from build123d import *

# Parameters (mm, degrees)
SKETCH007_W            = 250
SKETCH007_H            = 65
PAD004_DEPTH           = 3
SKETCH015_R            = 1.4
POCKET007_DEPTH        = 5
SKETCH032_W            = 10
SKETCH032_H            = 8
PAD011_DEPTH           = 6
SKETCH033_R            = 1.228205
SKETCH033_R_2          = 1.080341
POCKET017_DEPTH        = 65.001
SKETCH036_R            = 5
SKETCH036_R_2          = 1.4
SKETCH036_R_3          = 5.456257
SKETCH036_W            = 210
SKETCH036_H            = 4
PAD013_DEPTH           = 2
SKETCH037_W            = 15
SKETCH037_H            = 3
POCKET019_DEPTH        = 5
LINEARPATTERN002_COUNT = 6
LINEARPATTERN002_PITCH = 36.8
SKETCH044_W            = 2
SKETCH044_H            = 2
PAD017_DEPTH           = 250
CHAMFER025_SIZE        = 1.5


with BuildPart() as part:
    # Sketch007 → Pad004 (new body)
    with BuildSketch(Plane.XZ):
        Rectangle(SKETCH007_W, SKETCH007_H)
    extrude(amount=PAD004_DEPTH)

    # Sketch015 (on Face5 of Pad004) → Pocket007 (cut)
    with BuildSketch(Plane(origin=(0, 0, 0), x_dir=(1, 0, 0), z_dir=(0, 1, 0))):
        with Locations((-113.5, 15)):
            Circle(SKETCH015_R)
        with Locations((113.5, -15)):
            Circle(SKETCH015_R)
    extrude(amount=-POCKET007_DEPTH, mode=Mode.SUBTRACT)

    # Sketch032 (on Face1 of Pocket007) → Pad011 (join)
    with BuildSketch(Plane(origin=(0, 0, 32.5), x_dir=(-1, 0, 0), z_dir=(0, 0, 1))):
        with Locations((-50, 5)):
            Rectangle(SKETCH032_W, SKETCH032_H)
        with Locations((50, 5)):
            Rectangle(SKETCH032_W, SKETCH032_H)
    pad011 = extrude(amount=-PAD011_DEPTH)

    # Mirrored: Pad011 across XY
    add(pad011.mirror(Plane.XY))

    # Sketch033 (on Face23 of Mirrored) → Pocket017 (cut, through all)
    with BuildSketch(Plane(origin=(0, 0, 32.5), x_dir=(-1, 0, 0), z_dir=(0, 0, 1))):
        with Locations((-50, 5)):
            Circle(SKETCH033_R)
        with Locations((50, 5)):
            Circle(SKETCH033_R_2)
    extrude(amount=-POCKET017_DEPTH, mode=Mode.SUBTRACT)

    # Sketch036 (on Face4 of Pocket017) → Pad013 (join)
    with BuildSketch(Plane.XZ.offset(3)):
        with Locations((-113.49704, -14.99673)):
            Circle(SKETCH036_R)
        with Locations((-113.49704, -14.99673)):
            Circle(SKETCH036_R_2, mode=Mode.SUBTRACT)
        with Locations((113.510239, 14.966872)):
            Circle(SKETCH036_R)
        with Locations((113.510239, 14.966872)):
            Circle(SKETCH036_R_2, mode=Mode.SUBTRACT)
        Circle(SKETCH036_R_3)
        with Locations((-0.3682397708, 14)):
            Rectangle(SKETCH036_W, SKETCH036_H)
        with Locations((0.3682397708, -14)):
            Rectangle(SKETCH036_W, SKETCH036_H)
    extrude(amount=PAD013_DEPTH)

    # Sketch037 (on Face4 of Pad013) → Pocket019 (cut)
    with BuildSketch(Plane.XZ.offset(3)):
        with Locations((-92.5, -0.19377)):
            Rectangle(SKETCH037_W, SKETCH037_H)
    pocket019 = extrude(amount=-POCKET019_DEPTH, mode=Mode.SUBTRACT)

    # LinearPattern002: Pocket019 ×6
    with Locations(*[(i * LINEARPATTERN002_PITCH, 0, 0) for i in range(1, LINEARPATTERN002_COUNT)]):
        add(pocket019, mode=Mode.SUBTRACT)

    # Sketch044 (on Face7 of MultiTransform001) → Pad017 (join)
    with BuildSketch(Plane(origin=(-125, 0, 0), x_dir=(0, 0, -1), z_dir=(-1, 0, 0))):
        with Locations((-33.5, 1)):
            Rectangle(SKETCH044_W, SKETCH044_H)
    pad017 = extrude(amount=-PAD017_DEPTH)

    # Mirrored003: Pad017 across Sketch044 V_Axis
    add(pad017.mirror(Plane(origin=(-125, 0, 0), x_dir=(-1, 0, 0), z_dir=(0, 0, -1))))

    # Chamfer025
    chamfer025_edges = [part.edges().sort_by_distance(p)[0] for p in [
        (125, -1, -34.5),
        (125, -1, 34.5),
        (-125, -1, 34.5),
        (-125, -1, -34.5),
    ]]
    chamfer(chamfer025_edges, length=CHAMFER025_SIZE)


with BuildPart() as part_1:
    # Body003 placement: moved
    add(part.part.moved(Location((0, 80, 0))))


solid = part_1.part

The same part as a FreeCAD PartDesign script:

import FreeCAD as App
import Part
import Sketcher
from FreeCAD import Vector


def edges_at(feature, points):
    """Names of the edges that pass closest to the given points."""
    edges = feature.Shape.Edges
    near = lambda p: min(range(len(edges)), key=lambda i: edges[i].distToShape(Part.Vertex(*p))[0])
    return sorted({f"Edge{near(p) + 1}" for p in points})


def add_polygon(sketch, points):
    """Adds a closed chain of lines whose ends are joined by coincident constraints."""
    first, n = sketch.GeometryCount, len(points)
    for a, b in zip(points, points[1:] + points[:1]):
        sketch.addGeometry(Part.LineSegment(App.Vector(*a, 0), App.Vector(*b, 0)), False)
    for i in range(n):
        sketch.addConstraint(Sketcher.Constraint("Coincident", first + i, 2, first + (i + 1) % n, 1))

doc = App.newDocument("Part")
body = doc.addObject("PartDesign::Body", "Body")

# Sketch on XZ plane
sketch1 = body.newObject("Sketcher::SketchObject", "Sketch")
sketch1.AttachmentSupport = (doc.getObject("XZ_Plane"), [""])
sketch1.MapMode = "FlatFace"
add_polygon(sketch1, [(-125, 32), (-125, -32), (125, -32), (125, 32)])  # lines 0-3
sketch1.addConstraint([
    Sketcher.Constraint("Vertical", 0),
    Sketcher.Constraint("Horizontal", 1),
    Sketcher.Constraint("Vertical", 2),
    Sketcher.Constraint("Horizontal", 3),
    Sketcher.Constraint("Symmetric", 0, 2, 2, 2, -1, 1),
    Sketcher.Constraint("DistanceX", 1, 1, 1, 2, 250.0),
    Sketcher.Constraint("DistanceY", 0, 2, 0, 1, 65.0),
])
pad1 = body.newObject("PartDesign::Pad", "Pad")
pad1.Profile = sketch1
pad1.Length = 3

# Sketch on XZ plane
sketch2 = body.newObject("Sketcher::SketchObject", "Sketch001")
sketch2.AttachmentSupport = (doc.getObject("XZ_Plane"), [""])
sketch2.MapMode = "FlatFace"
sketch2.addGeometry([
    Part.Circle(Vector(-113.5, -15, 0), Vector(0, 0, 1), 1.4),
    Part.Circle(Vector(113.5, 15, 0), Vector(0, 0, 1), 1.4),
], False)
sketch2.addConstraint([
    Sketcher.Constraint("Equal", 0, 1),
    Sketcher.Constraint("Symmetric", 0, 3, 1, 3, -1, 1),
    Sketcher.Constraint("Diameter", 0, 2.8),
    Sketcher.Constraint("DistanceY", 0, 3, -1, 1, 15.0),
    Sketcher.Constraint("DistanceX", 0, 3, 1, 3, 227.0),
])
pocket1 = body.newObject("PartDesign::Pocket", "Pocket")
pocket1.Profile = sketch2
pocket1.Length = 5
pocket1.Reversed = True

# Sketch on XY plane
sketch3 = body.newObject("Sketcher::SketchObject", "Sketch002")
sketch3.AttachmentSupport = (doc.getObject("XY_Plane"), [""])
sketch3.MapMode = "FlatFace"
sketch3.AttachmentOffset = App.Placement(Vector(0, 0, 32.5), App.Rotation())
add_polygon(sketch3, [(55, -9), (55, -1), (45, -1), (45, -9)])  # lines 0-3
add_polygon(sketch3, [(-45, -9), (-45, -1), (-55, -1), (-55, -9)])  # lines 4-7
sketch3.addConstraint([
    Sketcher.Constraint("Vertical", 0),
    Sketcher.Constraint("Horizontal", 1),
    Sketcher.Constraint("Vertical", 2),
    Sketcher.Constraint("Horizontal", 3),
    Sketcher.Constraint("Vertical", 4),
    Sketcher.Constraint("Horizontal", 5),
    Sketcher.Constraint("Vertical", 6),
    Sketcher.Constraint("Horizontal", 7),
    Sketcher.Constraint("Symmetric", 1, 2, 4, 2, -2),
    Sketcher.Constraint("Symmetric", 3, 2, 6, 2, -2),
    Sketcher.Constraint("DistanceX", 1, 2, 1, 1, 10.0),
    Sketcher.Constraint("DistanceY", 0, 1, 0, 2, 8.0),
    Sketcher.Constraint("DistanceX", -1, 1, 0, 2, 55.0),
    Sketcher.Constraint("DistanceY", 0, 2, -1, 1, 1.0),
])
pad2 = body.newObject("PartDesign::Pad", "Pad001")
pad2.Profile = sketch3
pad2.Length = 6
pad2.Reversed = True
doc.recompute()

mirrored = body.newObject("PartDesign::Mirrored", "Mirrored")
mirrored.Originals = [pad2]
mirrored.MirrorPlane = (doc.getObject("XY_Plane"), [""])
body.Tip = mirrored

# Sketch on XY plane
sketch4 = body.newObject("Sketcher::SketchObject", "Sketch003")
sketch4.AttachmentSupport = (doc.getObject("XY_Plane"), [""])
sketch4.MapMode = "FlatFace"
sketch4.AttachmentOffset = App.Placement(Vector(0, 0, 32.5), App.Rotation())
sketch4.addGeometry([
    Part.Circle(Vector(50, -5, 0), Vector(0, 0, 1), 1.2),
    Part.Circle(Vector(-50, -5, 0), Vector(0, 0, 1), 1.1),
], False)
sketch4.addConstraint([
    Sketcher.Constraint("Symmetric", 0, 3, 1, 3, -2),
    Sketcher.Constraint("DistanceX", -1, 1, 0, 3, 50.0),
    Sketcher.Constraint("DistanceY", 0, 3, -1, 1, 5.0),
    Sketcher.Constraint("Diameter", 0, 2.45641),
    Sketcher.Constraint("Diameter", 1, 2.160682),
])
pocket2 = body.newObject("PartDesign::Pocket", "Pocket001")
pocket2.Profile = sketch4
pocket2.Type = "ThroughAll"

# Sketch on XZ plane
sketch5 = body.newObject("Sketcher::SketchObject", "Sketch004")
sketch5.AttachmentSupport = (doc.getObject("XZ_Plane"), [""])
sketch5.MapMode = "FlatFace"
sketch5.AttachmentOffset = App.Placement(Vector(0, 0, 3), App.Rotation())
sketch5.addGeometry(Part.Circle(Vector(-113.5, -15, 0), Vector(0, 0, 1), 5), False)  # 0
sketch5.addGeometry(Part.Circle(Vector(-113.5, -15, 0), Vector(0, 0, 1), 1.4), False)  # 1
sketch5.addGeometry(Part.Circle(Vector(113.5, 15, 0), Vector(0, 0, 1), 5), False)  # 2
sketch5.addGeometry(Part.Circle(Vector(113.5, 15, 0), Vector(0, 0, 1), 1.4), False)  # 3
sketch5.addGeometry(Part.Circle(Vector(0, 0, 0), Vector(0, 0, 1), 5.5), False)  # 4
add_polygon(sketch5, [(-105.4, 16), (-105.4, 12), (104.6, 12), (104.6, 16)])  # lines 5-8
add_polygon(sketch5, [(-104.6, -12), (-104.6, -16), (105.4, -16), (105.4, -12)])  # lines 9-12
sketch5.addConstraint([
    Sketcher.Constraint("Vertical", 5),
    Sketcher.Constraint("Horizontal", 6),
    Sketcher.Constraint("Vertical", 7),
    Sketcher.Constraint("Horizontal", 8),
    Sketcher.Constraint("Vertical", 9),
    Sketcher.Constraint("Horizontal", 10),
    Sketcher.Constraint("Vertical", 11),
    Sketcher.Constraint("Horizontal", 12),
    Sketcher.Constraint("Coincident", 4, 3, -1, 1),
    Sketcher.Constraint("Coincident", 1, 3, 0, 3),
    Sketcher.Constraint("Coincident", 3, 3, 2, 3),
    Sketcher.Constraint("Equal", 0, 2),
    Sketcher.Constraint("Equal", 1, 3),
    Sketcher.Constraint("Symmetric", 7, 2, 9, 2, -1, 1),
    Sketcher.Constraint("Symmetric", 5, 2, 11, 2, -1, 1),
    Sketcher.Constraint("Diameter", 0, 10.0),
    Sketcher.Constraint("Diameter", 1, 2.8),
    Sketcher.Constraint("DistanceX", 6, 1, 6, 2, 210.0),
    Sketcher.Constraint("DistanceY", 5, 2, 5, 1, 4.0),
    Sketcher.Constraint("DistanceY", -1, 1, 5, 2, 12.0),
    Sketcher.Constraint("Diameter", 4, 10.912514),
    Sketcher.Constraint("DistanceX", 10, 2, 2, 3, 8.141999),
    Sketcher.Constraint("DistanceX", 0, 3, 5, 2, 8.1288),
    Sketcher.Constraint("DistanceX", 0, 3, -1, 1, 113.49704),
    Sketcher.Constraint("DistanceY", 0, 3, -1, 1, 14.99673),
    Sketcher.Constraint("DistanceY", -1, 1, 2, 3, 14.966872),
])
pad3 = body.newObject("PartDesign::Pad", "Pad002")
pad3.Profile = sketch5
pad3.Length = 2

# Sketch on XZ plane
sketch6 = body.newObject("Sketcher::SketchObject", "Sketch005")
sketch6.AttachmentSupport = (doc.getObject("XZ_Plane"), [""])
sketch6.MapMode = "FlatFace"
sketch6.AttachmentOffset = App.Placement(Vector(0, 0, 3), App.Rotation())
add_polygon(sketch6, [(-100, 1.3), (-100, -1.7), (-85, -1.7), (-85, 1.3)])  # lines 0-3
sketch6.addConstraint([
    Sketcher.Constraint("Vertical", 0),
    Sketcher.Constraint("Horizontal", 1),
    Sketcher.Constraint("Vertical", 2),
    Sketcher.Constraint("Horizontal", 3),
    Sketcher.Constraint("DistanceX", 1, 1, 1, 2, 15.0),
    Sketcher.Constraint("DistanceY", 0, 2, 0, 1, 3.0),
    Sketcher.Constraint("DistanceX", 0, 2, -1, 1, 100.0),
    Sketcher.Constraint("DistanceY", 0, 2, -1, 1, 1.69377),
])
pocket3 = body.newObject("PartDesign::Pocket", "Pocket002")
pocket3.Profile = sketch6
pocket3.Length = 5
doc.recompute()

linearpattern = body.newObject("PartDesign::LinearPattern", "LinearPattern")
linearpattern.Originals = [pocket3]
linearpattern.Direction = (doc.getObject("X_Axis"), [""])
linearpattern.Mode = "offset"
linearpattern.Offset = 36.8
linearpattern.Occurrences = 6
body.Tip = linearpattern

# Sketch on YZ plane
sketch7 = body.newObject("Sketcher::SketchObject", "Sketch006")
sketch7.AttachmentSupport = (doc.getObject("YZ_Plane"), [""])
sketch7.MapMode = "FlatFace"
sketch7.AttachmentOffset = App.Placement(Vector(0, 0, -125), App.Rotation())
add_polygon(sketch7, [(-2, 34.5), (0, 34.5), (0, 32.5), (-2, 32.5)])  # lines 0-3
sketch7.addConstraint([
    Sketcher.Constraint("Horizontal", 0),
    Sketcher.Constraint("Vertical", 1),
    Sketcher.Constraint("Horizontal", 2),
    Sketcher.Constraint("Vertical", 3),
    Sketcher.Constraint("PointOnObject", 0, 2, -2),
    Sketcher.Constraint("Equal", 2, 1),
    Sketcher.Constraint("DistanceX", 0, 1, 0, 2, 2.0),
    Sketcher.Constraint("DistanceY", -1, 1, 0, 2, 34.5),
])
pad4 = body.newObject("PartDesign::Pad", "Pad003")
pad4.Profile = sketch7
pad4.Length = 250
doc.recompute()

mirrored2 = body.newObject("PartDesign::Mirrored", "Mirrored001")
mirrored2.Originals = [pad4]
mirrored2.MirrorPlane = (doc.getObject("XY_Plane"), [""])
body.Tip = mirrored2
doc.recompute()

chamfer = body.newObject("PartDesign::Chamfer", "Chamfer")
chamfer.Base = (mirrored2, edges_at(mirrored2, [
    (125, -1, -34.5),
    (125, -1, 34.5),
    (-125, -1, 34.5),
    (-125, -1, -34.5),
]))
chamfer.Size = 1.5
body2 = doc.addObject("PartDesign::Body", "Body001")
doc.recompute()

body.Placement = App.Placement(Vector(0, 80, 0), App.Rotation(Vector(0, 0, 1), 0))
boolean = body2.newObject("PartDesign::Boolean", "Boolean")
boolean.Type = "Fuse"
boolean.addObjects([body])

doc.recompute()
